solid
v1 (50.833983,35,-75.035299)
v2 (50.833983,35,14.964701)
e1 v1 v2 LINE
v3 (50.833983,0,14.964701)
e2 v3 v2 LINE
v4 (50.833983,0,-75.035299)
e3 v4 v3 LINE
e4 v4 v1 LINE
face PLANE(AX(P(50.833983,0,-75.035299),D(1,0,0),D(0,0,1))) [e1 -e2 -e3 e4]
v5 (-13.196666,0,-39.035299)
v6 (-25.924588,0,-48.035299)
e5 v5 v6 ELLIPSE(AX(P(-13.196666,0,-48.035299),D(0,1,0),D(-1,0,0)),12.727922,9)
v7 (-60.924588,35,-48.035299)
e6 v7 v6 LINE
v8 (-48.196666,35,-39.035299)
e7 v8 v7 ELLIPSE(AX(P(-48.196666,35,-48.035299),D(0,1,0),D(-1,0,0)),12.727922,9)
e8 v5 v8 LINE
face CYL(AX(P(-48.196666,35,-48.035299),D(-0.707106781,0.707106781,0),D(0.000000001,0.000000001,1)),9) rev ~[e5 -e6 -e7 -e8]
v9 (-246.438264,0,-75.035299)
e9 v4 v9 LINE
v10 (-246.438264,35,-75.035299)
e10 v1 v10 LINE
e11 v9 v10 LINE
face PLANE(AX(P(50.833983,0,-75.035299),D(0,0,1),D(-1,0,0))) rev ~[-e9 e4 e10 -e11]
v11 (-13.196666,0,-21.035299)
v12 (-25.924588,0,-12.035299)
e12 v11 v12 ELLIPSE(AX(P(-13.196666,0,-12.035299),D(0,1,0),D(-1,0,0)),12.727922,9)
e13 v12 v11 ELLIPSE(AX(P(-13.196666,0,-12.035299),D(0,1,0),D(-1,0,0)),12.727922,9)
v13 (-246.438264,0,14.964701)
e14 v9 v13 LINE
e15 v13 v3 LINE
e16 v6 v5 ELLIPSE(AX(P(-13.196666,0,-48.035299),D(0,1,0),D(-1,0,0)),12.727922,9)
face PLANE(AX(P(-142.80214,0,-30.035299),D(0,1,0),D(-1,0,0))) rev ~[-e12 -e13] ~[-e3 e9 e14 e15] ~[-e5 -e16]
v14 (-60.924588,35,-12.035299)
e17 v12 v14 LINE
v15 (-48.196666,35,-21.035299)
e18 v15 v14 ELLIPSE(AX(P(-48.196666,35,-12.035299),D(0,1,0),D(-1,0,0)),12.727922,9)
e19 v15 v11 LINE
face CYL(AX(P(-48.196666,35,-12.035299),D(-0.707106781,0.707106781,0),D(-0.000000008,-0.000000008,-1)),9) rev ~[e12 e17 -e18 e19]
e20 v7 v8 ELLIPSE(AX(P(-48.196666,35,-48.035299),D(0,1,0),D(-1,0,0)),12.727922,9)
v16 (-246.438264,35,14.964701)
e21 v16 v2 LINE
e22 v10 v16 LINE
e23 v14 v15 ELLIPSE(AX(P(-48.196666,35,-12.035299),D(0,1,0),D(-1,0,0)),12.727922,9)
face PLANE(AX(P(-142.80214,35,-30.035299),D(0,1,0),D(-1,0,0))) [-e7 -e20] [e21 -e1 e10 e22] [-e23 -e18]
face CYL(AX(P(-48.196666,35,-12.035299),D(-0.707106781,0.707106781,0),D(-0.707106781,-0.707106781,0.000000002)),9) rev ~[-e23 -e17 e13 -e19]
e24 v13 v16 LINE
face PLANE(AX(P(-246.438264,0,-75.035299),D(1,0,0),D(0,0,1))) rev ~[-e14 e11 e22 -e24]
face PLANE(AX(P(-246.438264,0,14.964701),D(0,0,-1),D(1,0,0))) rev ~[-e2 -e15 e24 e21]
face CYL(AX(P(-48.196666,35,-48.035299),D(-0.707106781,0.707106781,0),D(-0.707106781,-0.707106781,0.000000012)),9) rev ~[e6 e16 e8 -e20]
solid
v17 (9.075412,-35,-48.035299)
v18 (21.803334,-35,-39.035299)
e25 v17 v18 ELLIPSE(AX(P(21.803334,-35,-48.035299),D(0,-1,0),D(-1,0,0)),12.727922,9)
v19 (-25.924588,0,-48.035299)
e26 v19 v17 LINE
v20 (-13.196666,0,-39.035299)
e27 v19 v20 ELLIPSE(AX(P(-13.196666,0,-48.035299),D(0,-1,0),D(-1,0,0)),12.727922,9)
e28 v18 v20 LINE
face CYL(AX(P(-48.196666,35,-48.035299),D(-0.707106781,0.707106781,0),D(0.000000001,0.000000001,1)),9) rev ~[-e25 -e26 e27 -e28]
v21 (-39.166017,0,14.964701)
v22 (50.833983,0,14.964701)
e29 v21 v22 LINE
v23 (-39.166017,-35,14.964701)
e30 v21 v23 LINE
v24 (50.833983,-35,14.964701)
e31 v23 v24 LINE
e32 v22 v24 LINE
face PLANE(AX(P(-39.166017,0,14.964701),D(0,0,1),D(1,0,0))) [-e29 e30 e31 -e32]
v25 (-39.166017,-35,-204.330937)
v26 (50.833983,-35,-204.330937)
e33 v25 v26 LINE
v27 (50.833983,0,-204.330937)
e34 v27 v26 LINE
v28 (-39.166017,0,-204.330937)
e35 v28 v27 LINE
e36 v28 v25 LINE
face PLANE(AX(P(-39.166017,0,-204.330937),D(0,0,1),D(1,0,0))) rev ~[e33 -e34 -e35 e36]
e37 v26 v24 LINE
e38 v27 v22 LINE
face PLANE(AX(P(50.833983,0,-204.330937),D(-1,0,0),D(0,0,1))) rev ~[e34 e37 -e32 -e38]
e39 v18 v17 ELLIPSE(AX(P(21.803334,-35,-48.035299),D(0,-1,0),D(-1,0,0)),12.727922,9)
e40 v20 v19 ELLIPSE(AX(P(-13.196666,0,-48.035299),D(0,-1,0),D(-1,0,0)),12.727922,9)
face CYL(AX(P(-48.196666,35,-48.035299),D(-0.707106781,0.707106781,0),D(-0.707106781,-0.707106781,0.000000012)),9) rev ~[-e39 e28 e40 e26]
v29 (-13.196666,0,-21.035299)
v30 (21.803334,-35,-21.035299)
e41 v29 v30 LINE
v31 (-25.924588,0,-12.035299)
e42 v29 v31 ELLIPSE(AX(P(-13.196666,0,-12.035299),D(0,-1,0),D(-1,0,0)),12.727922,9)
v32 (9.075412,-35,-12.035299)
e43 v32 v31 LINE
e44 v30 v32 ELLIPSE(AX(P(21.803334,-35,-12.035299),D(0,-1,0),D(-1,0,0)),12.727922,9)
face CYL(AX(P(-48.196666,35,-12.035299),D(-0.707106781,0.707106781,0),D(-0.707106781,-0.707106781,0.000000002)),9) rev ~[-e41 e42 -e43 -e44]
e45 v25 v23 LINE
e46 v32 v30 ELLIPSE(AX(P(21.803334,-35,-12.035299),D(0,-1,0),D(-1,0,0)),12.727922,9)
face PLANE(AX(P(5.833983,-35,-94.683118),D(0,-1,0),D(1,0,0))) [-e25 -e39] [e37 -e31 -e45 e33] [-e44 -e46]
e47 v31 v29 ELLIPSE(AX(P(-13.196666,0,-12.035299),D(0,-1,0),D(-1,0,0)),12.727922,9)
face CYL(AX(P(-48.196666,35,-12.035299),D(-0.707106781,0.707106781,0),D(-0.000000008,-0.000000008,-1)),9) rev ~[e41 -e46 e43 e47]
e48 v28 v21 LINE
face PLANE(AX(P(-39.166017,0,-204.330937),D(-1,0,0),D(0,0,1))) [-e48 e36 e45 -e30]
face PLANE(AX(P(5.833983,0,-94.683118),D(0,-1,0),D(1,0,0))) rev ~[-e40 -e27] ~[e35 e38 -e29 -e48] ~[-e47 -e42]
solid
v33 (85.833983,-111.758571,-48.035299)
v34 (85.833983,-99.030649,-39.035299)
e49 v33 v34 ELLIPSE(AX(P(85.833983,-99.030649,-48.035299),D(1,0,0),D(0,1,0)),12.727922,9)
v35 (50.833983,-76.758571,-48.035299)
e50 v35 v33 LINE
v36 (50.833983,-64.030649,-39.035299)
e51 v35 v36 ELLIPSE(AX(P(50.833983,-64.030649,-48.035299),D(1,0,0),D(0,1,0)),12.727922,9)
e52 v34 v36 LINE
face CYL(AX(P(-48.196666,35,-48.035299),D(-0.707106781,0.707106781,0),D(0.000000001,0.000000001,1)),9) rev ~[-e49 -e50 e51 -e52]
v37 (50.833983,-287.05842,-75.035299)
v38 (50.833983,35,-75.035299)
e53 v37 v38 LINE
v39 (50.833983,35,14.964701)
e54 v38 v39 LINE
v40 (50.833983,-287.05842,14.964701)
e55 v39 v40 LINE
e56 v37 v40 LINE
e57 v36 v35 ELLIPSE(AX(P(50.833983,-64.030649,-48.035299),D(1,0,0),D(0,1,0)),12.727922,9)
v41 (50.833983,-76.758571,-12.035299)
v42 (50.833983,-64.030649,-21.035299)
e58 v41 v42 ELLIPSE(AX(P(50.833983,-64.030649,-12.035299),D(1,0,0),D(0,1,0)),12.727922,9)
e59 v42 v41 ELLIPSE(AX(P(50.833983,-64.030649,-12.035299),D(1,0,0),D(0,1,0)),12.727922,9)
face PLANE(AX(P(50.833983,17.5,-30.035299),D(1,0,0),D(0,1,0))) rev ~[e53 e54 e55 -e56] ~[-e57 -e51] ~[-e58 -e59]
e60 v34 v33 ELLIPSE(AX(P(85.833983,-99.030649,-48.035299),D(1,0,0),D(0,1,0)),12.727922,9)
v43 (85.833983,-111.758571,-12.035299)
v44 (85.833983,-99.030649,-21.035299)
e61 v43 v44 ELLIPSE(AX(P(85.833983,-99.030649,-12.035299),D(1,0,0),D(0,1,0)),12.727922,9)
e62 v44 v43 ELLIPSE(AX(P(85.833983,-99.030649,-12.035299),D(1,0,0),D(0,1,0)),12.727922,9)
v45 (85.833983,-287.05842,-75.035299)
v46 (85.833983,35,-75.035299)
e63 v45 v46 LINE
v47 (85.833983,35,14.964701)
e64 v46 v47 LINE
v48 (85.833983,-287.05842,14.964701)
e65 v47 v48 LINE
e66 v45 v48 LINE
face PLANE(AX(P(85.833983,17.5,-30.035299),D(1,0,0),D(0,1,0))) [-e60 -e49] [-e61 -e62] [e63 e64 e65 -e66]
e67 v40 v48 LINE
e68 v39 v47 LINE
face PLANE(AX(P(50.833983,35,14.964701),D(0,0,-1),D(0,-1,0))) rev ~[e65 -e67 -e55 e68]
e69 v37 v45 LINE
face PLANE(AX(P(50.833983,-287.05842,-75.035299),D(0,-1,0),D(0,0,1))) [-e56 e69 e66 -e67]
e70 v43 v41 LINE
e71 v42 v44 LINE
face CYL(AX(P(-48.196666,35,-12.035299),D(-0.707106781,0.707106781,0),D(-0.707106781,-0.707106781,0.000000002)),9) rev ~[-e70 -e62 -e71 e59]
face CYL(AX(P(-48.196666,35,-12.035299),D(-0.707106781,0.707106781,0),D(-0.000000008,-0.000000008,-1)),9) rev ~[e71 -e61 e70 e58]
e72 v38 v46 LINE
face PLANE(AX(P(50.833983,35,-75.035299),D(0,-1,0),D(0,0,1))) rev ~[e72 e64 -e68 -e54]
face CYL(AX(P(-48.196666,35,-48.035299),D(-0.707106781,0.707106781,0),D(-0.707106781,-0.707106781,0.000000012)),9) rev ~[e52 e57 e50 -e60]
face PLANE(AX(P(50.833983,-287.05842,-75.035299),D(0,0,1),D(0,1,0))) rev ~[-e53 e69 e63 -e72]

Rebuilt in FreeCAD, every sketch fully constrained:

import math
import FreeCAD as App
import Part
import Sketcher

V = App.Vector


def add_polygon(sketch, points):
    """Adds a closed chain of lines whose ends are joined by coincident constraints."""
    first, n = sketch.GeometryCount, len(points)
    for a, b in zip(points, points[1:] + points[:1]):
        sketch.addGeometry(Part.LineSegment(App.Vector(*a, 0), App.Vector(*b, 0)), False)
    for i in range(n):
        sketch.addConstraint(Sketcher.Constraint("Coincident", first + i, 2, first + (i + 1) % n, 1))

doc = App.newDocument("Part")
params = doc.addObject("Spreadsheet::Sheet", "Params")
for row, (alias, value) in enumerate([
    ("sketch1_width", "90 mm"),
    ("pad1_length", "35 mm"),
    ("sketch2_height", "90 mm"),
    ("pad2_length", "35 mm"),
    ("sketch3_height", "90 mm"),
    ("pad3_length", "35 mm"),
    ("sketch4_radius", "9 mm"),
    ("pad4_length", "25 mm"),
    ("pad4_length2", "205.408499 mm"),
], start=1):
    params.set(f"A{row}", alias)
    params.set(f"B{row}", "=" + value)
    params.setAlias(f"B{row}", alias)

body = doc.addObject("PartDesign::Body", "Body")

sketch1 = doc.addObject("Sketcher::SketchObject", "Sketch")
body.addObject(sketch1)
sketch1.AttachmentSupport = (doc.XZ_Plane, [""])
sketch1.MapMode = "FlatFace"
add_polygon(sketch1, [(-39.166017, 14.964701), (-39.166017, -204.330937), (50.833983, -204.330937), (50.833983, 14.964701)])
sketch1.addConstraint(Sketcher.Constraint("Vertical", 0))
sketch1.addConstraint(Sketcher.Constraint("Horizontal", 1))
sketch1.addConstraint(Sketcher.Constraint("Vertical", 2))
sketch1.addConstraint(Sketcher.Constraint("Horizontal", 3))
sketch1.addConstraint(Sketcher.Constraint("DistanceX", 1, 1, 1, 2, 90.0))
sketch1.addConstraint(Sketcher.Constraint("DistanceY", 0, 2, 0, 1, 219.295638))
sketch1.addConstraint(Sketcher.Constraint("DistanceY", -1, 1, 2, 2, 14.964701))
sketch1.addConstraint(Sketcher.Constraint("DistanceX", 0, 2, -1, 1, 39.166017))
sketch1.setExpression("Constraints[8]", "Params.sketch1_width")
pad1 = doc.addObject("PartDesign::Pad", "Pad")
body.addObject(pad1)
pad1.Profile = sketch1
pad1.setExpression("Length", "Params.pad1_length")
body2 = doc.addObject("PartDesign::Body", "Body001")

sketch2 = doc.addObject("Sketcher::SketchObject", "Sketch001")
body2.addObject(sketch2)
sketch2.AttachmentSupport = (doc.getObject("XZ_Plane001"), [""])
sketch2.MapMode = "FlatFace"
add_polygon(sketch2, [(50.833983, 14.964701), (50.833983, -75.035299), (-246.438264, -75.035299), (-246.438264, 14.964701)])
sketch2.addConstraint(Sketcher.Constraint("Vertical", 0))
sketch2.addConstraint(Sketcher.Constraint("Horizontal", 1))
sketch2.addConstraint(Sketcher.Constraint("Vertical", 2))
sketch2.addConstraint(Sketcher.Constraint("Horizontal", 3))
sketch2.addConstraint(Sketcher.Constraint("DistanceY", 0, 2, 0, 1, 90.0))
sketch2.addConstraint(Sketcher.Constraint("DistanceY", 0, 2, -1, 1, 75.035299))
sketch2.addConstraint(Sketcher.Constraint("DistanceX", 1, 2, 1, 1, 297.272246))
sketch2.addConstraint(Sketcher.Constraint("DistanceX", -1, 1, 0, 2, 50.833983))
sketch2.setExpression("Constraints[8]", "Params.sketch2_height")
pad2 = doc.addObject("PartDesign::Pad", "Pad001")
body2.addObject(pad2)
pad2.Profile = sketch2
pad2.setExpression("Length", "Params.pad2_length")
pad2.Reversed = True
body3 = doc.addObject("PartDesign::Body", "Body002")

sketch3 = doc.addObject("Sketcher::SketchObject", "Sketch002")
body3.addObject(sketch3)
sketch3.AttachmentSupport = (doc.getObject("YZ_Plane002"), [""])
sketch3.MapMode = "FlatFace"
sketch3.AttachmentOffset = App.Placement(V(0, 0, 50.833983), App.Rotation())
add_polygon(sketch3, [(35, -75.035299), (35, 14.964701), (-287.05842, 14.964701), (-287.05842, -75.035299)])
sketch3.addConstraint(Sketcher.Constraint("Vertical", 0))
sketch3.addConstraint(Sketcher.Constraint("Horizontal", 1))
sketch3.addConstraint(Sketcher.Constraint("Vertical", 2))
sketch3.addConstraint(Sketcher.Constraint("Horizontal", 3))
sketch3.addConstraint(Sketcher.Constraint("DistanceY", 0, 1, 0, 2, 90.0))
sketch3.addConstraint(Sketcher.Constraint("DistanceX", -1, 1, 0, 2, 35.0))
sketch3.addConstraint(Sketcher.Constraint("DistanceX", 1, 2, 1, 1, 322.05842))
sketch3.addConstraint(Sketcher.Constraint("DistanceY", -1, 1, 0, 2, 14.964701))
sketch3.setExpression("Constraints[8]", "Params.sketch3_height")
pad3 = doc.addObject("PartDesign::Pad", "Pad002")
body3.addObject(pad3)
pad3.Profile = sketch3
pad3.setExpression("Length", "Params.pad3_length")
body4 = doc.addObject("PartDesign::Body", "Body003")
body4.AllowCompound = True

sketch4 = doc.addObject("Sketcher::SketchObject", "Sketch003")
body4.addObject(sketch4)
sketch4.Placement = App.Placement(V(-41.598333, 41.598333, 0), App.Rotation(V(-0.707106781, -0.707106781, 0), V(0, 0, 0.999999999), V(-0.707106781, 0.707106781, 0), "ZXY"))
sketch4.addGeometry(Part.ArcOfCircle(Part.Circle(V(9.331452, -12.035299, 0), V(0, 0, 1), 9), math.radians(-89.999999), math.radians(-0.000001)), False)
sketch4.addGeometry(Part.ArcOfCircle(Part.Circle(V(9.331452, -12.035299, 0), V(0, 0, 1), 9), math.radians(0), math.radians(270)), False)
sketch4.addGeometry(Part.ArcOfCircle(Part.Circle(V(9.331452, -48.035299, 0), V(0, 0, 1), 9), math.radians(0.000001), math.radians(89.999999)), False)
sketch4.addGeometry(Part.ArcOfCircle(Part.Circle(V(9.331452, -48.035299, 0), V(0, 0, 1), 9), math.radians(90), math.radians(360)), False)
sketch4.addConstraint(Sketcher.Constraint("Tangent", 0, 1, 1, 2))
sketch4.addConstraint(Sketcher.Constraint("Coincident", 1, 1, 0, 2))
sketch4.addConstraint(Sketcher.Constraint("Tangent", 2, 1, 3, 2))
sketch4.addConstraint(Sketcher.Constraint("Coincident", 3, 1, 2, 2))
sketch4.addConstraint(Sketcher.Constraint("Equal", 1, 2))
sketch4.addConstraint(Sketcher.Constraint("Horizontal", 0, 3, 1, 1))
sketch4.addConstraint(Sketcher.Constraint("Horizontal", 3, 3, 2, 1))
sketch4.addConstraint(Sketcher.Constraint("Vertical", 1, 3, 2, 3))
sketch4.addConstraint(Sketcher.Constraint("Vertical", 3, 3, 0, 1))
sketch4.addConstraint(Sketcher.Constraint("Vertical", 0, 1, 3, 1))
sketch4.addConstraint(Sketcher.Constraint("Radius", 0, 9.0))
sketch4.addConstraint(Sketcher.Constraint("DistanceY", 2, 3, 1, 3, 36.0))
sketch4.addConstraint(Sketcher.Constraint("DistanceY", 0, 3, -1, 1, 12.035299))
sketch4.addConstraint(Sketcher.Constraint("DistanceX", -1, 1, 0, 3, 9.331452))
sketch4.setExpression("Constraints[10]", "Params.sketch4_radius")
pad4 = doc.addObject("PartDesign::Pad", "Pad003")
body4.addObject(pad4)
pad4.Profile = sketch4
pad4.Type = "TwoLengths"
pad4.setExpression("Length", "Params.pad4_length")
pad4.setExpression("Length2", "Params.pad4_length2")
doc.recompute()

body5 = doc.addObject("PartDesign::Body", "Body004")
body5.BaseFeature = body4
boolean = doc.addObject("PartDesign::Boolean", "Boolean")
body.addObject(boolean)
boolean.Type = "Cut"
boolean.addObjects([body5])
doc.recompute()

body6 = doc.addObject("PartDesign::Body", "Body005")
body6.BaseFeature = body4
boolean2 = doc.addObject("PartDesign::Boolean", "Boolean001")
body2.addObject(boolean2)
boolean2.Type = "Cut"
boolean2.addObjects([body6])
doc.recompute()

boolean3 = doc.addObject("PartDesign::Boolean", "Boolean002")
body3.addObject(boolean3)
boolean3.Type = "Cut"
boolean3.addObjects([body4])

doc.recompute()
